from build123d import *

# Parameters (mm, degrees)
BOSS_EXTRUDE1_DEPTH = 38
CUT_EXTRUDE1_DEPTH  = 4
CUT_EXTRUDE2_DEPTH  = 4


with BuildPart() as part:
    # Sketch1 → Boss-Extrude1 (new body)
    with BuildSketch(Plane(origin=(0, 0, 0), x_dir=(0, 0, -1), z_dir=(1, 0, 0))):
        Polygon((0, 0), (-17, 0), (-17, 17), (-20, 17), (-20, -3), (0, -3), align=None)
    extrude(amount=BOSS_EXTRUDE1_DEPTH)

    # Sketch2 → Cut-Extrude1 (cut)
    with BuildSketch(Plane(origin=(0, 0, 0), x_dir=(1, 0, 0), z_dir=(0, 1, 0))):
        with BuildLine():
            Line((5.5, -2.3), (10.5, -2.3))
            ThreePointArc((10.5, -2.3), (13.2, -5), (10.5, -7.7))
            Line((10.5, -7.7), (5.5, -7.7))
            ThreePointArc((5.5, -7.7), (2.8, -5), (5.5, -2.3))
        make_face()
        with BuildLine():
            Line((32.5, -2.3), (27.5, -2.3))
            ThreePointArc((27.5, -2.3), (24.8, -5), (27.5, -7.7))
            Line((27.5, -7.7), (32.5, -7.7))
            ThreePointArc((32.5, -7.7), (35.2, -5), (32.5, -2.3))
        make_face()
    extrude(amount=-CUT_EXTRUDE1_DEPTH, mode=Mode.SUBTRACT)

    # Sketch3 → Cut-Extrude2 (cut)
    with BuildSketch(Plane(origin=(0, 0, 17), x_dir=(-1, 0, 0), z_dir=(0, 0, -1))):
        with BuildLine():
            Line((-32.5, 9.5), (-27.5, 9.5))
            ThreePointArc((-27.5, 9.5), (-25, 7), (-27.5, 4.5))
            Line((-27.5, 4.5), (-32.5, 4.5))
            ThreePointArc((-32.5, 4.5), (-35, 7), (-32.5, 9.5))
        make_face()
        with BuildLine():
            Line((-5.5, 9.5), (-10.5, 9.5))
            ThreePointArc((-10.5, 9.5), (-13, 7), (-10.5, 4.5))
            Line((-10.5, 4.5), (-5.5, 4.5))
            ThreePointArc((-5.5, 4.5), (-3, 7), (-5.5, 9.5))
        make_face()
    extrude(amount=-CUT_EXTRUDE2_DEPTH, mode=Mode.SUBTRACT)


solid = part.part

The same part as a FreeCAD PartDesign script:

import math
import FreeCAD as App
import Part
import Sketcher

V = App.Vector

doc = App.newDocument("Part")
params = doc.addObject("Spreadsheet::Sheet", "Params")
for row, (alias, value) in enumerate([
    ("sketch1_width", "17 mm"),
    ("sketch1_width2", "20 mm"),
    ("pad1_length", "38 mm"),
    ("sketch2_radius", "2.7 mm"),
    ("sketch2_width", "5 mm"),
    ("pocket1_length", "4 mm"),
    ("sketch3_radius", "2.5 mm"),
    ("sketch3_width", "5 mm"),
    ("pocket2_length", "4 mm"),
], start=1):
    params.set(f"A{row}", alias)
    params.set(f"B{row}", "=" + value)
    params.setAlias(f"B{row}", alias)

body = doc.addObject("PartDesign::Body", "Body")

sketch1 = body.newObject("Sketcher::SketchObject", "Sketch")
sketch1.AttachmentSupport = (doc.getObject("YZ_Plane"), [""])
sketch1.MapMode = "FlatFace"
sketch1.addGeometry([
    Part.LineSegment(V(0, 0, 0), V(0, 17, 0)),
    Part.LineSegment(V(0, 17, 0), V(17, 17, 0)),
    Part.LineSegment(V(17, 17, 0), V(17, 20, 0)),
    Part.LineSegment(V(17, 20, 0), V(-3, 20, 0)),
    Part.LineSegment(V(-3, 20, 0), V(-3, 0, 0)),
    Part.LineSegment(V(-3, 0, 0), V(0, 0, 0)),
], False)
sketch1.addConstraint([
    Sketcher.Constraint("Coincident", 0, 2, 1, 1),
    Sketcher.Constraint("Coincident", 1, 2, 2, 1),
    Sketcher.Constraint("Coincident", 2, 2, 3, 1),
    Sketcher.Constraint("Coincident", 3, 2, 4, 1),
    Sketcher.Constraint("Coincident", 4, 2, 5, 1),
    Sketcher.Constraint("Coincident", 5, 2, 0, 1),
    Sketcher.Constraint("Vertical", 0),
    Sketcher.Constraint("Horizontal", 1),
    Sketcher.Constraint("Vertical", 2),
    Sketcher.Constraint("Horizontal", 3),
    Sketcher.Constraint("Vertical", 4),
    Sketcher.Constraint("Horizontal", 5),
    Sketcher.Constraint("Coincident", 5, 2, -1, 1),
    Sketcher.Constraint("Equal", 1, 0),
    Sketcher.Constraint("Equal", 5, 2),
    Sketcher.Constraint("DistanceX", 1, 1, 1, 2, 17.0),
    Sketcher.Constraint("DistanceX", 3, 2, 3, 1, 20.0),
])
sketch1.setExpression("Constraints[15]", "Params.sketch1_width")
sketch1.setExpression("Constraints[16]", "Params.sketch1_width2")
pad1 = body.newObject("PartDesign::Pad", "Pad")
pad1.Profile = sketch1
pad1.setExpression("Length", "Params.pad1_length")

sketch2 = body.newObject("Sketcher::SketchObject", "Sketch001")
sketch2.AttachmentSupport = (doc.getObject("XZ_Plane"), [""])
sketch2.MapMode = "FlatFace"
sketch2.addGeometry([
    Part.LineSegment(V(10.5, 2.3, 0), V(5.5, 2.3, 0)),
    Part.ArcOfCircle(Part.Circle(V(5.5, 5, 0), V(0, 0, 1), 2.7), math.radians(90), math.radians(270)),
    Part.LineSegment(V(5.5, 7.7, 0), V(10.5, 7.7, 0)),
    Part.ArcOfCircle(Part.Circle(V(10.5, 5, 0), V(0, 0, 1), 2.7), math.radians(-90), math.radians(90)),
    Part.LineSegment(V(32.5, 2.3, 0), V(27.5, 2.3, 0)),
    Part.ArcOfCircle(Part.Circle(V(27.5, 5, 0), V(0, 0, 1), 2.7), math.radians(90), math.radians(270)),
    Part.LineSegment(V(27.5, 7.7, 0), V(32.5, 7.7, 0)),
    Part.ArcOfCircle(Part.Circle(V(32.5, 5, 0), V(0, 0, 1), 2.7), math.radians(-90), math.radians(90)),
], False)
sketch2.addConstraint([
    Sketcher.Constraint("Tangent", 0, 2, 1, 2),
    Sketcher.Constraint("Tangent", 1, 1, 2, 1),
    Sketcher.Constraint("Tangent", 2, 2, 3, 2),
    Sketcher.Constraint("Tangent", 3, 1, 0, 1),
    Sketcher.Constraint("Tangent", 4, 2, 5, 2),
    Sketcher.Constraint("Tangent", 5, 1, 6, 1),
    Sketcher.Constraint("Tangent", 6, 2, 7, 2),
    Sketcher.Constraint("Tangent", 7, 1, 4, 1),
    Sketcher.Constraint("Horizontal", 0),
    Sketcher.Constraint("Horizontal", 2),
    Sketcher.Constraint("Horizontal", 4),
    Sketcher.Constraint("Horizontal", 6),
    Sketcher.Constraint("Equal", 3, 5),
    Sketcher.Constraint("Horizontal", 3, 3, 5, 3),
    Sketcher.Constraint("Equal", 2, 4),
    Sketcher.Constraint("Radius", 1, 2.7),
    Sketcher.Constraint("DistanceX", 0, 2, 0, 1, 5.0),
    Sketcher.Constraint("DistanceY", -1, 1, 1, 3, 5.0),
    Sketcher.Constraint("DistanceX", 3, 3, 5, 3, 17.0),
    Sketcher.Constraint("DistanceX", -1, 1, 1, 3, 5.5),
])
sketch2.setExpression("Constraints[15]", "Params.sketch2_radius")
sketch2.setExpression("Constraints[16]", "Params.sketch2_width")
pocket1 = body.newObject("PartDesign::Pocket", "Pocket")
pocket1.Profile = sketch2
pocket1.setExpression("Length", "Params.pocket1_length")
pocket1.Reversed = True

sketch3 = body.newObject("Sketcher::SketchObject", "Sketch002")
sketch3.AttachmentSupport = (doc.getObject("XY_Plane"), [""])
sketch3.MapMode = "FlatFace"
sketch3.AttachmentOffset = App.Placement(V(0, 0, 17), App.Rotation())
sketch3.addGeometry([
    Part.LineSegment(V(27.5, 9.5, 0), V(32.5, 9.5, 0)),
    Part.ArcOfCircle(Part.Circle(V(32.5, 7, 0), V(0, 0, 1), 2.5), math.radians(-90), math.radians(90)),
    Part.LineSegment(V(32.5, 4.5, 0), V(27.5, 4.5, 0)),
    Part.ArcOfCircle(Part.Circle(V(27.5, 7, 0), V(0, 0, 1), 2.5), math.radians(90), math.radians(270)),
    Part.LineSegment(V(5.5, 9.5, 0), V(10.5, 9.5, 0)),
    Part.ArcOfCircle(Part.Circle(V(10.5, 7, 0), V(0, 0, 1), 2.5), math.radians(-90), math.radians(90)),
    Part.LineSegment(V(10.5, 4.5, 0), V(5.5, 4.5, 0)),
    Part.ArcOfCircle(Part.Circle(V(5.5, 7, 0), V(0, 0, 1), 2.5), math.radians(90), math.radians(270)),
], False)
sketch3.addConstraint([
    Sketcher.Constraint("Tangent", 0, 2, 1, 2),
    Sketcher.Constraint("Tangent", 1, 1, 2, 1),
    Sketcher.Constraint("Tangent", 2, 2, 3, 2),
    Sketcher.Constraint("Tangent", 3, 1, 0, 1),
    Sketcher.Constraint("Tangent", 4, 2, 5, 2),
    Sketcher.Constraint("Tangent", 5, 1, 6, 1),
    Sketcher.Constraint("Tangent", 6, 2, 7, 2),
    Sketcher.Constraint("Tangent", 7, 1, 4, 1),
    Sketcher.Constraint("Horizontal", 0),
    Sketcher.Constraint("Horizontal", 2),
    Sketcher.Constraint("Horizontal", 4),
    Sketcher.Constraint("Horizontal", 6),
    Sketcher.Constraint("Equal", 3, 5),
    Sketcher.Constraint("Horizontal", 3, 3, 5, 3),
    Sketcher.Constraint("Equal", 2, 4),
    Sketcher.Constraint("Radius", 1, 2.5),
    Sketcher.Constraint("DistanceX", 0, 1, 0, 2, 5.0),
    Sketcher.Constraint("DistanceY", -1, 1, 1, 3, 7.0),
    Sketcher.Constraint("DistanceX", 5, 3, 3, 3, 17.0),
    Sketcher.Constraint("DistanceX", -1, 1, 1, 3, 32.5),
])
sketch3.setExpression("Constraints[15]", "Params.sketch3_radius")
sketch3.setExpression("Constraints[16]", "Params.sketch3_width")
pocket2 = body.newObject("PartDesign::Pocket", "Pocket001")
pocket2.Profile = sketch3
pocket2.setExpression("Length", "Params.pocket2_length")
pocket2.Reversed = True

doc.recompute()
